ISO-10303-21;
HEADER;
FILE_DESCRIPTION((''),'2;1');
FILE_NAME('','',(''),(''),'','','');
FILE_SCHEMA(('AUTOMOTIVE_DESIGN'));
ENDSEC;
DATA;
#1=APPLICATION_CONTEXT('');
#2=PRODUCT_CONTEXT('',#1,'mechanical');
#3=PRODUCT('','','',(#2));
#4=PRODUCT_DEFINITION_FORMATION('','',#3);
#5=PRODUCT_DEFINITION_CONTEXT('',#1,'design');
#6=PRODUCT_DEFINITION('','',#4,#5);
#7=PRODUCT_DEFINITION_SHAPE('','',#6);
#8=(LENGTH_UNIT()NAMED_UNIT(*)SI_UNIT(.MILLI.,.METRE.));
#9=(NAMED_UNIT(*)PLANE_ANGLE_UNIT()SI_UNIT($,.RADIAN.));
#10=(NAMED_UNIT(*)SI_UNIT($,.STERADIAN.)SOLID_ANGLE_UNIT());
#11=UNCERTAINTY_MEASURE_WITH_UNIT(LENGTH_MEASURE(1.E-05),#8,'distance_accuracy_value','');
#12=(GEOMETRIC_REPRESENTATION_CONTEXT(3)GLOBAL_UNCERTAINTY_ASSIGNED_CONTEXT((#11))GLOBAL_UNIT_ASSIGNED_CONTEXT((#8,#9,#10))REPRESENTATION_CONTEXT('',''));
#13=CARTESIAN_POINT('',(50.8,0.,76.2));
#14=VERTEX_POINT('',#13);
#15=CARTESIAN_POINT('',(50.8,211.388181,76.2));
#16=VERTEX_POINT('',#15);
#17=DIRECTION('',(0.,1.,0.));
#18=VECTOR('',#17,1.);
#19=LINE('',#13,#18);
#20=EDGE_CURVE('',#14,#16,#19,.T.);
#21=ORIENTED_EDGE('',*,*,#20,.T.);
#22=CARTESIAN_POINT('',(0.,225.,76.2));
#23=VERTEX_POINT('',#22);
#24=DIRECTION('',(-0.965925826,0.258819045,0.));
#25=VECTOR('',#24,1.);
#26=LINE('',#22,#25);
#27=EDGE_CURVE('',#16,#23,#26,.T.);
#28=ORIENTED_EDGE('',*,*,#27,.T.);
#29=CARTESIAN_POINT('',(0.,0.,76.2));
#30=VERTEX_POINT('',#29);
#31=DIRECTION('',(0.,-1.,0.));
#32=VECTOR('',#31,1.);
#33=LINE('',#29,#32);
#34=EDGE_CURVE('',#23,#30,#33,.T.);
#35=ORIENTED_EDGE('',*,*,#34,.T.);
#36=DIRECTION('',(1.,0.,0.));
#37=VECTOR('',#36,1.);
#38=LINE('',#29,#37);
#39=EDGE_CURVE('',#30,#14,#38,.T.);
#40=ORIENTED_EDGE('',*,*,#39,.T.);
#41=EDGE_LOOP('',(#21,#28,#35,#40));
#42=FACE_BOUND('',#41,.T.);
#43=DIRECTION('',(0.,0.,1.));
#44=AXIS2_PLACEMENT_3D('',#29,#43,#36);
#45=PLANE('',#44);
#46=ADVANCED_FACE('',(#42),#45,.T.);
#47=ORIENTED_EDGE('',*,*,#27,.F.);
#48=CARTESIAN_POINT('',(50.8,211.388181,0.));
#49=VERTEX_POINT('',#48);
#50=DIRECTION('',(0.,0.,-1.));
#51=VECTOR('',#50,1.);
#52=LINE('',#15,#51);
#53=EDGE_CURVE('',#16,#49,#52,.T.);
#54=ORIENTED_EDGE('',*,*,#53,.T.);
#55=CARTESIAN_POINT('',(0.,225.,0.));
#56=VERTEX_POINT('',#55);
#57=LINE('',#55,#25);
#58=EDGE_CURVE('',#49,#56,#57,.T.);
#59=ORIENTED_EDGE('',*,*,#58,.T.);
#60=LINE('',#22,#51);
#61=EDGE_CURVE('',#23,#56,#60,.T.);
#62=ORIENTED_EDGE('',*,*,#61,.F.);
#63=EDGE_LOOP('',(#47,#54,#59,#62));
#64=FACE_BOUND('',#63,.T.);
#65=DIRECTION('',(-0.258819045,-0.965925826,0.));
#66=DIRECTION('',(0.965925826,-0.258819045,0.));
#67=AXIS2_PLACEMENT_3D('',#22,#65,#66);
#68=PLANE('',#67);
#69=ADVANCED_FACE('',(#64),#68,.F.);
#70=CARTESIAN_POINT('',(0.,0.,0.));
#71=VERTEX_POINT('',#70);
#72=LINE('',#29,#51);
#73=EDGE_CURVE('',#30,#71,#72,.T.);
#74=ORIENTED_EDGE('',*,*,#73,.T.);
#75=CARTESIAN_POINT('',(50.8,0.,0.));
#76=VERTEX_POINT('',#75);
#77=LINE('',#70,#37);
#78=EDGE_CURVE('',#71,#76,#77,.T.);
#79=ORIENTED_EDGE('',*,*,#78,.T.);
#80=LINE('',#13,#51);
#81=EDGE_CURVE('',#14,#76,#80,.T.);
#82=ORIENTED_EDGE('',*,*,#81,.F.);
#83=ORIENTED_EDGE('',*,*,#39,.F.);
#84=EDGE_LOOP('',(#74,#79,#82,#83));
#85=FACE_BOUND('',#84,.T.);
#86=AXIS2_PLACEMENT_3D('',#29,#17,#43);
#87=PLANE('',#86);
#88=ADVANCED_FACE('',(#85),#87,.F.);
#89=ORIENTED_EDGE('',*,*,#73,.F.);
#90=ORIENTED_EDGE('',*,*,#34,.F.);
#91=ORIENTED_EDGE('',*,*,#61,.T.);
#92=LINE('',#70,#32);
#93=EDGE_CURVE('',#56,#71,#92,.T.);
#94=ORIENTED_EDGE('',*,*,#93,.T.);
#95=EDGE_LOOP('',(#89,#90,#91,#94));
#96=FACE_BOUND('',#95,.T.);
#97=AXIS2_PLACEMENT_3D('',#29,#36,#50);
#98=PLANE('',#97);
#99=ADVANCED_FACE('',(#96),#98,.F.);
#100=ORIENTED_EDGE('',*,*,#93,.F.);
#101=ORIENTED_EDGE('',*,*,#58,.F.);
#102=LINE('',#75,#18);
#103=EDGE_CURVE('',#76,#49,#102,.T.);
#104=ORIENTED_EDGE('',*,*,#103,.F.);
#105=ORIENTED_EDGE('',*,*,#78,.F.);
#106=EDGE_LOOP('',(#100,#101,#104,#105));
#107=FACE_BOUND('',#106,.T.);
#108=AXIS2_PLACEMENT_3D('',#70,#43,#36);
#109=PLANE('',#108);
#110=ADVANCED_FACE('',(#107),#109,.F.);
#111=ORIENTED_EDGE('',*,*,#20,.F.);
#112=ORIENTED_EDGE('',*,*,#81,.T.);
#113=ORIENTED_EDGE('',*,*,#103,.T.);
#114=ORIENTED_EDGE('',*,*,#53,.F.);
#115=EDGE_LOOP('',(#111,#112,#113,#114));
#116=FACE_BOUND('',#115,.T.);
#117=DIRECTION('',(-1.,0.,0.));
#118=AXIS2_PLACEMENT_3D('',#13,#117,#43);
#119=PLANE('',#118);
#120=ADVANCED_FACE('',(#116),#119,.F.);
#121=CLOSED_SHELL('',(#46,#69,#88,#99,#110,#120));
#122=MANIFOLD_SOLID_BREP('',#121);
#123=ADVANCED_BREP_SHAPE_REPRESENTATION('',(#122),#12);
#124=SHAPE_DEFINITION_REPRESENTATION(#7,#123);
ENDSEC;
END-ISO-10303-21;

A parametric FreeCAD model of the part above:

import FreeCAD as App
import Part
import Sketcher
Q = App.Units.Quantity

doc = App.newDocument("Part")
params = doc.addObject("Spreadsheet::Sheet", "Params")
for row, (alias, value) in enumerate([
    ("sketch1_width", "2 in"),
    ("pad1_length", "3 in"),
], start=1):
    params.set(f"A{row}", alias)
    params.set(f"B{row}", "=" + value)
    params.setAlias(f"B{row}", alias)

body = doc.addObject("PartDesign::Body", "Body")

# Sketch on XY plane
sketch1 = body.newObject("Sketcher::SketchObject", "Sketch")
sketch1.AttachmentSupport = (doc.getObject("XY_Plane"), [""])
sketch1.MapMode = "FlatFace"
sketch1.addGeometry([
    Part.LineSegment(App.Vector(0, 225, 0), App.Vector(0, 0, 0)),
    Part.LineSegment(App.Vector(0, 0, 0), App.Vector(51, 0, 0)),
    Part.LineSegment(App.Vector(51, 0, 0), App.Vector(51, 211, 0)),
    Part.LineSegment(App.Vector(51, 211, 0), App.Vector(0, 225, 0)),
], False)
sketch1.addConstraint([
    Sketcher.Constraint("Coincident", 0, 2, 1, 1),
    Sketcher.Constraint("Coincident", 1, 2, 2, 1),
    Sketcher.Constraint("Coincident", 2, 2, 3, 1),
    Sketcher.Constraint("Coincident", 3, 2, 0, 1),
    Sketcher.Constraint("Vertical", 0),
    Sketcher.Constraint("Horizontal", 1),
    Sketcher.Constraint("Vertical", 2),
    Sketcher.Constraint("Coincident", 0, 2, -1, 1),
    Sketcher.Constraint("DistanceX", 1, 1, 1, 2, Q("2 in")),
    Sketcher.Constraint("Angle", 3, Q("165 deg")),
    Sketcher.Constraint("DistanceY", 0, 2, 0, 1, Q("225 mm")),
])
sketch1.setExpression("Constraints[8]", "Params.sketch1_width")
pad1 = body.newObject("PartDesign::Pad", "Pad")
pad1.Profile = sketch1
pad1.setExpression("Length", "Params.pad1_length")

doc.recompute()
